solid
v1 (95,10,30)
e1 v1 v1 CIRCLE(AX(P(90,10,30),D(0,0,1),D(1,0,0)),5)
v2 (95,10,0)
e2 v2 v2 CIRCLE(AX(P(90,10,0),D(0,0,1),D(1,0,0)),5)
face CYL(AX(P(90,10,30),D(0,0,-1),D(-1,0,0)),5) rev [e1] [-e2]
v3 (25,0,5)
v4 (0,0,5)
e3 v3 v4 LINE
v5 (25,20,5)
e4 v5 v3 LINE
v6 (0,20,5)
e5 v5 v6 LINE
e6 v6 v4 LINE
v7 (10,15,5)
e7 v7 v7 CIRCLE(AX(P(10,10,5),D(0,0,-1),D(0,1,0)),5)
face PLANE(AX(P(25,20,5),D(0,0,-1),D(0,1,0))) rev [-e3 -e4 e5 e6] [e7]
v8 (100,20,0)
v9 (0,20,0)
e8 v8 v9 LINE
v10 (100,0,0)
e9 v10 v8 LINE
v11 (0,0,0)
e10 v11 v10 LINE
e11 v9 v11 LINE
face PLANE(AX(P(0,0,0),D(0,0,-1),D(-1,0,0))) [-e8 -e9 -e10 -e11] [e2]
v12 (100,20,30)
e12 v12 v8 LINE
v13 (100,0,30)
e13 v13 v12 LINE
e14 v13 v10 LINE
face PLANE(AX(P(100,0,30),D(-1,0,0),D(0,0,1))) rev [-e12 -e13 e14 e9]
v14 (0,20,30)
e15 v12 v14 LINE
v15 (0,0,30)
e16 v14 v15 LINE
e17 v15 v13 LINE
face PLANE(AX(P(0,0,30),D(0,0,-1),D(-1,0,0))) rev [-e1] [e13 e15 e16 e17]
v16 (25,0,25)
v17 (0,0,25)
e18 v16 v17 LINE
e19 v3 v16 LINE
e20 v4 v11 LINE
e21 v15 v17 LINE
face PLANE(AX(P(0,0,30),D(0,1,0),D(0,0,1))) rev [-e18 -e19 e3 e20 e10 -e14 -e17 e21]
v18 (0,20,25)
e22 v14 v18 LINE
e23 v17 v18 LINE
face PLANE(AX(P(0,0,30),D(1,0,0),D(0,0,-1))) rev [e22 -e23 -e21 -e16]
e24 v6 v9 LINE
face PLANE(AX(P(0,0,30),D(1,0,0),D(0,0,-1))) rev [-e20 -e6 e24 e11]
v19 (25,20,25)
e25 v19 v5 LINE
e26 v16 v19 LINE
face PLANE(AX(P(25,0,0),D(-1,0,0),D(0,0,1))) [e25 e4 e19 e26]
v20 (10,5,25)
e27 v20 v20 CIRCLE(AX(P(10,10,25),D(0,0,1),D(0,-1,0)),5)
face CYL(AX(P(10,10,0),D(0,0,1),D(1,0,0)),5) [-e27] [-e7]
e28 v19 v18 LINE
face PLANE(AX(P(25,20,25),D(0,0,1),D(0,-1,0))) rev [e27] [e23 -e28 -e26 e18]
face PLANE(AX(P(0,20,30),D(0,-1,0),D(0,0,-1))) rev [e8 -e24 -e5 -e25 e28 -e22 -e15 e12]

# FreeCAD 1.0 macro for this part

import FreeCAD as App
import Part
import Sketcher
from FreeCAD import Vector

doc = App.newDocument("Part")
body = doc.addObject("PartDesign::Body", "Body")

# Sketch on XY plane
sketch1 = doc.addObject("Sketcher::SketchObject", "Sketch")
body.addObject(sketch1)
sketch1.AttachmentSupport = (doc.XY_Plane, [""])
sketch1.MapMode = "FlatFace"
sketch1.addGeometry(Part.LineSegment(Vector(0, 20, 0), Vector(0, 0, 0)), False)
sketch1.addGeometry(Part.LineSegment(Vector(0, 0, 0), Vector(100, 0, 0)), False)
sketch1.addGeometry(Part.LineSegment(Vector(100, 0, 0), Vector(100, 20, 0)), False)
sketch1.addGeometry(Part.LineSegment(Vector(100, 20, 0), Vector(0, 20, 0)), False)
sketch1.addGeometry(Part.Circle(Vector(90, 10, 0), Vector(0, 0, 1), 5), False)
sketch1.addConstraint(Sketcher.Constraint("Coincident", 0, 2, 1, 1))
sketch1.addConstraint(Sketcher.Constraint("Coincident", 1, 2, 2, 1))
sketch1.addConstraint(Sketcher.Constraint("Coincident", 2, 2, 3, 1))
sketch1.addConstraint(Sketcher.Constraint("Coincident", 3, 2, 0, 1))
sketch1.addConstraint(Sketcher.Constraint("Vertical", 0))
sketch1.addConstraint(Sketcher.Constraint("Horizontal", 1))
sketch1.addConstraint(Sketcher.Constraint("Vertical", 2))
sketch1.addConstraint(Sketcher.Constraint("Horizontal", 3))
sketch1.addConstraint(Sketcher.Constraint("Coincident", 0, 2, -1, 1))
sketch1.addConstraint(Sketcher.Constraint("Diameter", 4, 10.0))
sketch1.addConstraint(Sketcher.Constraint("DistanceX", 1, 1, 1, 2, 100.0))
sketch1.addConstraint(Sketcher.Constraint("DistanceY", 0, 2, 0, 1, 20.0))
sketch1.addConstraint(Sketcher.Constraint("DistanceX", -1, 1, 4, 3, 90.0))
sketch1.addConstraint(Sketcher.Constraint("DistanceY", -1, 1, 4, 3, 10.0))
pad1 = doc.addObject("PartDesign::Pad", "Pad")
body.addObject(pad1)
pad1.Profile = sketch1
pad1.Length = 30

# Sketch on YZ plane
sketch2 = doc.addObject("Sketcher::SketchObject", "Sketch001")
body.addObject(sketch2)
sketch2.AttachmentSupport = (doc.YZ_Plane, [""])
sketch2.MapMode = "FlatFace"
sketch2.addGeometry(Part.LineSegment(Vector(20, 5, 0), Vector(0, 5, 0)), False)
sketch2.addGeometry(Part.LineSegment(Vector(0, 5, 0), Vector(0, 25, 0)), False)
sketch2.addGeometry(Part.LineSegment(Vector(0, 25, 0), Vector(20, 25, 0)), False)
sketch2.addGeometry(Part.LineSegment(Vector(20, 25, 0), Vector(20, 5, 0)), False)
sketch2.addConstraint(Sketcher.Constraint("Coincident", 0, 2, 1, 1))
sketch2.addConstraint(Sketcher.Constraint("Coincident", 1, 2, 2, 1))
sketch2.addConstraint(Sketcher.Constraint("Coincident", 2, 2, 3, 1))
sketch2.addConstraint(Sketcher.Constraint("Coincident", 3, 2, 0, 1))
sketch2.addConstraint(Sketcher.Constraint("Horizontal", 0))
sketch2.addConstraint(Sketcher.Constraint("Vertical", 1))
sketch2.addConstraint(Sketcher.Constraint("Horizontal", 2))
sketch2.addConstraint(Sketcher.Constraint("Vertical", 3))
sketch2.addConstraint(Sketcher.Constraint("PointOnObject", 0, 2, -2))
sketch2.addConstraint(Sketcher.Constraint("Equal", 2, 1))
sketch2.addConstraint(Sketcher.Constraint("DistanceX", 0, 2, 0, 1, 20.0))
sketch2.addConstraint(Sketcher.Constraint("DistanceY", -1, 1, 0, 2, 5.0))
pocket1 = doc.addObject("PartDesign::Pocket", "Pocket")
body.addObject(pocket1)
pocket1.Profile = sketch2
pocket1.Length = 25
pocket1.Reversed = True

# Sketch on XY plane
sketch3 = doc.addObject("Sketcher::SketchObject", "Sketch002")
body.addObject(sketch3)
sketch3.AttachmentSupport = (doc.XY_Plane, [""])
sketch3.MapMode = "FlatFace"
sketch3.AttachmentOffset = App.Placement(Vector(0, 0, 30), App.Rotation())
sketch3.addGeometry(Part.Circle(Vector(10, 10, 0), Vector(0, 0, 1), 5), False)
sketch3.addConstraint(Sketcher.Constraint("Diameter", 0, 10.0))
sketch3.addConstraint(Sketcher.Constraint("DistanceX", -1, 1, 0, 3, 10.0))
sketch3.addConstraint(Sketcher.Constraint("DistanceY", -1, 1, 0, 3, 10.0))
pad2 = doc.addObject("PartDesign::Pad", "Pad001")
body.addObject(pad2)
pad2.Profile = sketch3
pad2.Length = 25
pad2.Reversed = True

doc.recompute()
